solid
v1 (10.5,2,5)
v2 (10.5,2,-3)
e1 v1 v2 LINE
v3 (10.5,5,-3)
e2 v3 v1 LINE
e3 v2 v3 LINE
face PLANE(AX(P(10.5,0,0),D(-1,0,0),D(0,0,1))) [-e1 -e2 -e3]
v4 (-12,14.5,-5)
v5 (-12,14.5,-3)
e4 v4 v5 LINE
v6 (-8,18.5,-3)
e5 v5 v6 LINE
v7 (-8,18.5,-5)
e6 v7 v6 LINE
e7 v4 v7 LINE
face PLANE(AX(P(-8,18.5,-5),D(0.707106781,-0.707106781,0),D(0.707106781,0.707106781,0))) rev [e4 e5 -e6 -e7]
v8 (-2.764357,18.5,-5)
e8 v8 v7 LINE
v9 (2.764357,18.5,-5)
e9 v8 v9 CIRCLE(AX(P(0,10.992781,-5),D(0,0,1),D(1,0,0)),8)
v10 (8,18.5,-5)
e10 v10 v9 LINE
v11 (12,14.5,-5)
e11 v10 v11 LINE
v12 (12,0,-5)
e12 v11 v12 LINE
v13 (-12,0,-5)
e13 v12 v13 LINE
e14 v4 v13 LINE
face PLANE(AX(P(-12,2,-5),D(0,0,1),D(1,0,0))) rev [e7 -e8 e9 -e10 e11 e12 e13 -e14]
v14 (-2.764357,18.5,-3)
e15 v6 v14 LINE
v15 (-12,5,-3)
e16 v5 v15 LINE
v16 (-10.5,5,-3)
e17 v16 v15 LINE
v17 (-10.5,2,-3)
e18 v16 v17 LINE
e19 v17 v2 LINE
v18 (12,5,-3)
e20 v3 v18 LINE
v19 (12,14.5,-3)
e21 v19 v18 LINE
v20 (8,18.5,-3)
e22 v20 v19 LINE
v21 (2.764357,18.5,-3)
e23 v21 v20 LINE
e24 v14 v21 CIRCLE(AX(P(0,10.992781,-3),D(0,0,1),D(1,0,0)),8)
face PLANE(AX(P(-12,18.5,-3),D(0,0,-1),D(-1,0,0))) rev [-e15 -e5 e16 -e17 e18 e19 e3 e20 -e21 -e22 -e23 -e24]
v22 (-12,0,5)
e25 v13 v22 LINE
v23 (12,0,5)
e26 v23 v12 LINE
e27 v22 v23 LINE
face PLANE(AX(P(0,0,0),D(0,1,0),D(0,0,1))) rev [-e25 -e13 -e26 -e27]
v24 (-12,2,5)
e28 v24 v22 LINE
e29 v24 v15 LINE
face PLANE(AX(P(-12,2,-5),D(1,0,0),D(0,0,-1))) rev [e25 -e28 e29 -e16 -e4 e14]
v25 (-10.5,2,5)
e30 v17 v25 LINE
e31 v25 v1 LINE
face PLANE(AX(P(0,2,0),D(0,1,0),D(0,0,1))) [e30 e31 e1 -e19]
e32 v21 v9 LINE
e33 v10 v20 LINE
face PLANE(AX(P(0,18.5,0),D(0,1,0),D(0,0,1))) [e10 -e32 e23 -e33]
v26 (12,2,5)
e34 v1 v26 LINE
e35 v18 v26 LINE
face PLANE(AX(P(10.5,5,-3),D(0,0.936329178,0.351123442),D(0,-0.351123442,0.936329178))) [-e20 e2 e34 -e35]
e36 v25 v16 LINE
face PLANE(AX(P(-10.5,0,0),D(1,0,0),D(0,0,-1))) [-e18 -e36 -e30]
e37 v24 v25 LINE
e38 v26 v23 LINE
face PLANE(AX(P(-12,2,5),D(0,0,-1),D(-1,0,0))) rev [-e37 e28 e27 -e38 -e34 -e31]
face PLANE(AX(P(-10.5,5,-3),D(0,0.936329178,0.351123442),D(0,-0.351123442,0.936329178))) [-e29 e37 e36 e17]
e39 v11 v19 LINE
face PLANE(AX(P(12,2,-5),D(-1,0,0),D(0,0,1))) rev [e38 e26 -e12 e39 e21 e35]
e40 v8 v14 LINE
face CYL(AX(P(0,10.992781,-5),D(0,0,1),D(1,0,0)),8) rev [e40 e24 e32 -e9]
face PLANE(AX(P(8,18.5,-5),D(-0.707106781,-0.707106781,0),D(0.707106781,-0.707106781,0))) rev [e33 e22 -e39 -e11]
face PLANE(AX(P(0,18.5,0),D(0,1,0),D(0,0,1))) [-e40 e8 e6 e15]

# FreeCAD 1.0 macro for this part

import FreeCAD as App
import Part
import Sketcher
from FreeCAD import Vector

doc = App.newDocument("Part")
params = doc.addObject("Spreadsheet::Sheet", "Params")
for row, (alias, value) in enumerate([
    ("sketch1_width", "24 mm"),
    ("sketch1_height", "10 mm"),
    ("pad1_length", "2 mm"),
    ("sketch2_width", "24 mm"),
    ("sketch2_height", "2 mm"),
    ("pad2_length", "16.5 mm"),
    ("sketch3_diameter", "16 mm"),
    ("pocket1_length", "2 mm"),
    ("sketch4_width", "4 mm"),
    ("pocket2_length", "2 mm"),
    ("sketch5_width", "3 mm"),
    ("sketch5_height", "8 mm"),
    ("pad3_length", "1.5 mm"),
    ("sketch6_width", "3 mm"),
    ("sketch6_height", "8 mm"),
    ("pad4_length", "1.5 mm"),
], start=1):
    params.set(f"A{row}", alias)
    params.set(f"B{row}", "=" + value)
    params.setAlias(f"B{row}", alias)

body = doc.addObject("PartDesign::Body", "Body")

sketch1 = body.newObject("Sketcher::SketchObject", "Sketch")
sketch1.AttachmentSupport = (doc.getObject("XZ_Plane"), [""])
sketch1.MapMode = "FlatFace"
sketch1.addGeometry([
    Part.LineSegment(Vector(-12, -5, 0), Vector(-12, 5, 0)),
    Part.LineSegment(Vector(-12, 5, 0), Vector(12, 5, 0)),
    Part.LineSegment(Vector(12, 5, 0), Vector(12, -5, 0)),
    Part.LineSegment(Vector(12, -5, 0), Vector(-12, -5, 0)),
], False)
sketch1.addConstraint([
    Sketcher.Constraint("Coincident", 0, 2, 1, 1),
    Sketcher.Constraint("Coincident", 1, 2, 2, 1),
    Sketcher.Constraint("Coincident", 2, 2, 3, 1),
    Sketcher.Constraint("Coincident", 3, 2, 0, 1),
    Sketcher.Constraint("Vertical", 0),
    Sketcher.Constraint("Horizontal", 1),
    Sketcher.Constraint("Vertical", 2),
    Sketcher.Constraint("Horizontal", 3),
    Sketcher.Constraint("Symmetric", 0, 2, 2, 2, -1, 1),
    Sketcher.Constraint("DistanceX", 1, 1, 1, 2, 24.0),
    Sketcher.Constraint("DistanceY", 0, 1, 0, 2, 10.0),
])
sketch1.setExpression("Constraints[9]", "Params.sketch1_width")
sketch1.setExpression("Constraints[10]", "Params.sketch1_height")
pad1 = body.newObject("PartDesign::Pad", "Pad")
pad1.Profile = sketch1
pad1.setExpression("Length", "Params.pad1_length")
pad1.Reversed = True

sketch2 = body.newObject("Sketcher::SketchObject", "Sketch001")
sketch2.AttachmentSupport = (doc.getObject("XZ_Plane"), [""])
sketch2.MapMode = "FlatFace"
sketch2.AttachmentOffset = App.Placement(Vector(0, 0, -2), App.Rotation())
sketch2.addGeometry([
    Part.LineSegment(Vector(-12, -5, 0), Vector(-12, -3, 0)),
    Part.LineSegment(Vector(-12, -3, 0), Vector(12, -3, 0)),
    Part.LineSegment(Vector(12, -3, 0), Vector(12, -5, 0)),
    Part.LineSegment(Vector(12, -5, 0), Vector(-12, -5, 0)),
], False)
sketch2.addConstraint([
    Sketcher.Constraint("Coincident", 0, 2, 1, 1),
    Sketcher.Constraint("Coincident", 1, 2, 2, 1),
    Sketcher.Constraint("Coincident", 2, 2, 3, 1),
    Sketcher.Constraint("Coincident", 3, 2, 0, 1),
    Sketcher.Constraint("Vertical", 0),
    Sketcher.Constraint("Horizontal", 1),
    Sketcher.Constraint("Vertical", 2),
    Sketcher.Constraint("Horizontal", 3),
    Sketcher.Constraint("DistanceX", 1, 1, 1, 2, 24.0),
    Sketcher.Constraint("DistanceY", 0, 1, 0, 2, 2.0),
    Sketcher.Constraint("DistanceX", 0, 2, -1, 1, 12.0),
    Sketcher.Constraint("DistanceY", 0, 2, -1, 1, 3.0),
])
sketch2.setExpression("Constraints[8]", "Params.sketch2_width")
sketch2.setExpression("Constraints[9]", "Params.sketch2_height")
pad2 = body.newObject("PartDesign::Pad", "Pad001")
pad2.Profile = sketch2
pad2.setExpression("Length", "Params.pad2_length")
pad2.Reversed = True

sketch3 = body.newObject("Sketcher::SketchObject", "Sketch002")
sketch3.AttachmentSupport = (doc.getObject("XY_Plane"), [""])
sketch3.MapMode = "FlatFace"
sketch3.AttachmentOffset = App.Placement(Vector(0, 0, -3), App.Rotation())
sketch3.addGeometry(Part.Circle(Vector(0, 10.992781, 0), Vector(0, 0, 1), 8), False)
sketch3.addConstraint([
    Sketcher.Constraint("PointOnObject", 0, 3, -2),
    Sketcher.Constraint("Diameter", 0, 16.0),
    Sketcher.Constraint("DistanceY", -1, 1, 0, 3, 10.992781),
])
sketch3.setExpression("Constraints[1]", "Params.sketch3_diameter")
pocket1 = body.newObject("PartDesign::Pocket", "Pocket")
pocket1.Profile = sketch3
pocket1.setExpression("Length", "Params.pocket1_length")

sketch4 = body.newObject("Sketcher::SketchObject", "Sketch003")
sketch4.AttachmentSupport = (doc.getObject("XY_Plane"), [""])
sketch4.MapMode = "FlatFace"
sketch4.AttachmentOffset = App.Placement(Vector(0, 0, -3), App.Rotation())
sketch4.addGeometry([
    Part.LineSegment(Vector(-8, 18.5, 0), Vector(-12, 18.5, 0)),
    Part.LineSegment(Vector(-12, 18.5, 0), Vector(-12, 14.5, 0)),
    Part.LineSegment(Vector(-12, 14.5, 0), Vector(-8, 18.5, 0)),
    Part.LineSegment(Vector(12, 18.5, 0), Vector(8, 18.5, 0)),
    Part.LineSegment(Vector(8, 18.5, 0), Vector(12, 14.5, 0)),
    Part.LineSegment(Vector(12, 14.5, 0), Vector(12, 18.5, 0)),
], False)
sketch4.addConstraint([
    Sketcher.Constraint("Coincident", 0, 2, 1, 1),
    Sketcher.Constraint("Coincident", 1, 2, 2, 1),
    Sketcher.Constraint("Coincident", 2, 2, 0, 1),
    Sketcher.Constraint("Coincident", 3, 2, 4, 1),
    Sketcher.Constraint("Coincident", 4, 2, 5, 1),
    Sketcher.Constraint("Coincident", 5, 2, 3, 1),
    Sketcher.Constraint("Horizontal", 0),
    Sketcher.Constraint("Vertical", 1),
    Sketcher.Constraint("Horizontal", 3),
    Sketcher.Constraint("Vertical", 5),
    Sketcher.Constraint("Symmetric", 2, 2, 3, 2, -2),
    Sketcher.Constraint("Symmetric", 1, 2, 4, 2, -2),
    Sketcher.Constraint("Perpendicular", 2, 4),
    Sketcher.Constraint("DistanceX", 0, 2, 0, 1, 4.0),
    Sketcher.Constraint("DistanceX", 0, 2, -1, 1, 12.0),
    Sketcher.Constraint("DistanceY", -1, 1, 0, 2, 18.5),
])
sketch4.setExpression("Constraints[13]", "Params.sketch4_width")
pocket2 = body.newObject("PartDesign::Pocket", "Pocket001")
pocket2.Profile = sketch4
pocket2.setExpression("Length", "Params.pocket2_length")

sketch5 = body.newObject("Sketcher::SketchObject", "Sketch004")
sketch5.AttachmentSupport = (doc.getObject("YZ_Plane"), [""])
sketch5.MapMode = "FlatFace"
sketch5.AttachmentOffset = App.Placement(Vector(0, 0, -12), App.Rotation())
sketch5.addGeometry([
    Part.LineSegment(Vector(5, -3, 0), Vector(2, -3, 0)),
    Part.LineSegment(Vector(2, -3, 0), Vector(2, 5, 0)),
    Part.LineSegment(Vector(2, 5, 0), Vector(5, -3, 0)),
], False)
sketch5.addConstraint([
    Sketcher.Constraint("Coincident", 0, 2, 1, 1),
    Sketcher.Constraint("Coincident", 1, 2, 2, 1),
    Sketcher.Constraint("Coincident", 2, 2, 0, 1),
    Sketcher.Constraint("Horizontal", 0),
    Sketcher.Constraint("Vertical", 1),
    Sketcher.Constraint("DistanceX", 0, 2, 0, 1, 3.0),
    Sketcher.Constraint("DistanceY", 1, 1, 1, 2, 8.0),
    Sketcher.Constraint("DistanceX", -1, 1, 0, 2, 2.0),
    Sketcher.Constraint("DistanceY", 0, 2, -1, 1, 3.0),
])
sketch5.setExpression("Constraints[5]", "Params.sketch5_width")
sketch5.setExpression("Constraints[6]", "Params.sketch5_height")
pad3 = body.newObject("PartDesign::Pad", "Pad002")
pad3.Profile = sketch5
pad3.setExpression("Length", "Params.pad3_length")

sketch6 = body.newObject("Sketcher::SketchObject", "Sketch005")
sketch6.AttachmentSupport = (doc.getObject("YZ_Plane"), [""])
sketch6.MapMode = "FlatFace"
sketch6.AttachmentOffset = App.Placement(Vector(0, 0, 12), App.Rotation())
sketch6.addGeometry([
    Part.LineSegment(Vector(2, 5, 0), Vector(2, -3, 0)),
    Part.LineSegment(Vector(2, -3, 0), Vector(5, -3, 0)),
    Part.LineSegment(Vector(5, -3, 0), Vector(2, 5, 0)),
], False)
sketch6.addConstraint([
    Sketcher.Constraint("Coincident", 0, 2, 1, 1),
    Sketcher.Constraint("Coincident", 1, 2, 2, 1),
    Sketcher.Constraint("Coincident", 2, 2, 0, 1),
    Sketcher.Constraint("Vertical", 0),
    Sketcher.Constraint("Horizontal", 1),
    Sketcher.Constraint("DistanceX", 1, 1, 1, 2, 3.0),
    Sketcher.Constraint("DistanceY", 0, 2, 0, 1, 8.0),
    Sketcher.Constraint("DistanceX", -1, 1, 0, 2, 2.0),
    Sketcher.Constraint("DistanceY", 0, 2, -1, 1, 3.0),
])
sketch6.setExpression("Constraints[5]", "Params.sketch6_width")
sketch6.setExpression("Constraints[6]", "Params.sketch6_height")
pad4 = body.newObject("PartDesign::Pad", "Pad003")
pad4.Profile = sketch6
pad4.setExpression("Length", "Params.pad4_length")
pad4.Reversed = True

doc.recompute()
